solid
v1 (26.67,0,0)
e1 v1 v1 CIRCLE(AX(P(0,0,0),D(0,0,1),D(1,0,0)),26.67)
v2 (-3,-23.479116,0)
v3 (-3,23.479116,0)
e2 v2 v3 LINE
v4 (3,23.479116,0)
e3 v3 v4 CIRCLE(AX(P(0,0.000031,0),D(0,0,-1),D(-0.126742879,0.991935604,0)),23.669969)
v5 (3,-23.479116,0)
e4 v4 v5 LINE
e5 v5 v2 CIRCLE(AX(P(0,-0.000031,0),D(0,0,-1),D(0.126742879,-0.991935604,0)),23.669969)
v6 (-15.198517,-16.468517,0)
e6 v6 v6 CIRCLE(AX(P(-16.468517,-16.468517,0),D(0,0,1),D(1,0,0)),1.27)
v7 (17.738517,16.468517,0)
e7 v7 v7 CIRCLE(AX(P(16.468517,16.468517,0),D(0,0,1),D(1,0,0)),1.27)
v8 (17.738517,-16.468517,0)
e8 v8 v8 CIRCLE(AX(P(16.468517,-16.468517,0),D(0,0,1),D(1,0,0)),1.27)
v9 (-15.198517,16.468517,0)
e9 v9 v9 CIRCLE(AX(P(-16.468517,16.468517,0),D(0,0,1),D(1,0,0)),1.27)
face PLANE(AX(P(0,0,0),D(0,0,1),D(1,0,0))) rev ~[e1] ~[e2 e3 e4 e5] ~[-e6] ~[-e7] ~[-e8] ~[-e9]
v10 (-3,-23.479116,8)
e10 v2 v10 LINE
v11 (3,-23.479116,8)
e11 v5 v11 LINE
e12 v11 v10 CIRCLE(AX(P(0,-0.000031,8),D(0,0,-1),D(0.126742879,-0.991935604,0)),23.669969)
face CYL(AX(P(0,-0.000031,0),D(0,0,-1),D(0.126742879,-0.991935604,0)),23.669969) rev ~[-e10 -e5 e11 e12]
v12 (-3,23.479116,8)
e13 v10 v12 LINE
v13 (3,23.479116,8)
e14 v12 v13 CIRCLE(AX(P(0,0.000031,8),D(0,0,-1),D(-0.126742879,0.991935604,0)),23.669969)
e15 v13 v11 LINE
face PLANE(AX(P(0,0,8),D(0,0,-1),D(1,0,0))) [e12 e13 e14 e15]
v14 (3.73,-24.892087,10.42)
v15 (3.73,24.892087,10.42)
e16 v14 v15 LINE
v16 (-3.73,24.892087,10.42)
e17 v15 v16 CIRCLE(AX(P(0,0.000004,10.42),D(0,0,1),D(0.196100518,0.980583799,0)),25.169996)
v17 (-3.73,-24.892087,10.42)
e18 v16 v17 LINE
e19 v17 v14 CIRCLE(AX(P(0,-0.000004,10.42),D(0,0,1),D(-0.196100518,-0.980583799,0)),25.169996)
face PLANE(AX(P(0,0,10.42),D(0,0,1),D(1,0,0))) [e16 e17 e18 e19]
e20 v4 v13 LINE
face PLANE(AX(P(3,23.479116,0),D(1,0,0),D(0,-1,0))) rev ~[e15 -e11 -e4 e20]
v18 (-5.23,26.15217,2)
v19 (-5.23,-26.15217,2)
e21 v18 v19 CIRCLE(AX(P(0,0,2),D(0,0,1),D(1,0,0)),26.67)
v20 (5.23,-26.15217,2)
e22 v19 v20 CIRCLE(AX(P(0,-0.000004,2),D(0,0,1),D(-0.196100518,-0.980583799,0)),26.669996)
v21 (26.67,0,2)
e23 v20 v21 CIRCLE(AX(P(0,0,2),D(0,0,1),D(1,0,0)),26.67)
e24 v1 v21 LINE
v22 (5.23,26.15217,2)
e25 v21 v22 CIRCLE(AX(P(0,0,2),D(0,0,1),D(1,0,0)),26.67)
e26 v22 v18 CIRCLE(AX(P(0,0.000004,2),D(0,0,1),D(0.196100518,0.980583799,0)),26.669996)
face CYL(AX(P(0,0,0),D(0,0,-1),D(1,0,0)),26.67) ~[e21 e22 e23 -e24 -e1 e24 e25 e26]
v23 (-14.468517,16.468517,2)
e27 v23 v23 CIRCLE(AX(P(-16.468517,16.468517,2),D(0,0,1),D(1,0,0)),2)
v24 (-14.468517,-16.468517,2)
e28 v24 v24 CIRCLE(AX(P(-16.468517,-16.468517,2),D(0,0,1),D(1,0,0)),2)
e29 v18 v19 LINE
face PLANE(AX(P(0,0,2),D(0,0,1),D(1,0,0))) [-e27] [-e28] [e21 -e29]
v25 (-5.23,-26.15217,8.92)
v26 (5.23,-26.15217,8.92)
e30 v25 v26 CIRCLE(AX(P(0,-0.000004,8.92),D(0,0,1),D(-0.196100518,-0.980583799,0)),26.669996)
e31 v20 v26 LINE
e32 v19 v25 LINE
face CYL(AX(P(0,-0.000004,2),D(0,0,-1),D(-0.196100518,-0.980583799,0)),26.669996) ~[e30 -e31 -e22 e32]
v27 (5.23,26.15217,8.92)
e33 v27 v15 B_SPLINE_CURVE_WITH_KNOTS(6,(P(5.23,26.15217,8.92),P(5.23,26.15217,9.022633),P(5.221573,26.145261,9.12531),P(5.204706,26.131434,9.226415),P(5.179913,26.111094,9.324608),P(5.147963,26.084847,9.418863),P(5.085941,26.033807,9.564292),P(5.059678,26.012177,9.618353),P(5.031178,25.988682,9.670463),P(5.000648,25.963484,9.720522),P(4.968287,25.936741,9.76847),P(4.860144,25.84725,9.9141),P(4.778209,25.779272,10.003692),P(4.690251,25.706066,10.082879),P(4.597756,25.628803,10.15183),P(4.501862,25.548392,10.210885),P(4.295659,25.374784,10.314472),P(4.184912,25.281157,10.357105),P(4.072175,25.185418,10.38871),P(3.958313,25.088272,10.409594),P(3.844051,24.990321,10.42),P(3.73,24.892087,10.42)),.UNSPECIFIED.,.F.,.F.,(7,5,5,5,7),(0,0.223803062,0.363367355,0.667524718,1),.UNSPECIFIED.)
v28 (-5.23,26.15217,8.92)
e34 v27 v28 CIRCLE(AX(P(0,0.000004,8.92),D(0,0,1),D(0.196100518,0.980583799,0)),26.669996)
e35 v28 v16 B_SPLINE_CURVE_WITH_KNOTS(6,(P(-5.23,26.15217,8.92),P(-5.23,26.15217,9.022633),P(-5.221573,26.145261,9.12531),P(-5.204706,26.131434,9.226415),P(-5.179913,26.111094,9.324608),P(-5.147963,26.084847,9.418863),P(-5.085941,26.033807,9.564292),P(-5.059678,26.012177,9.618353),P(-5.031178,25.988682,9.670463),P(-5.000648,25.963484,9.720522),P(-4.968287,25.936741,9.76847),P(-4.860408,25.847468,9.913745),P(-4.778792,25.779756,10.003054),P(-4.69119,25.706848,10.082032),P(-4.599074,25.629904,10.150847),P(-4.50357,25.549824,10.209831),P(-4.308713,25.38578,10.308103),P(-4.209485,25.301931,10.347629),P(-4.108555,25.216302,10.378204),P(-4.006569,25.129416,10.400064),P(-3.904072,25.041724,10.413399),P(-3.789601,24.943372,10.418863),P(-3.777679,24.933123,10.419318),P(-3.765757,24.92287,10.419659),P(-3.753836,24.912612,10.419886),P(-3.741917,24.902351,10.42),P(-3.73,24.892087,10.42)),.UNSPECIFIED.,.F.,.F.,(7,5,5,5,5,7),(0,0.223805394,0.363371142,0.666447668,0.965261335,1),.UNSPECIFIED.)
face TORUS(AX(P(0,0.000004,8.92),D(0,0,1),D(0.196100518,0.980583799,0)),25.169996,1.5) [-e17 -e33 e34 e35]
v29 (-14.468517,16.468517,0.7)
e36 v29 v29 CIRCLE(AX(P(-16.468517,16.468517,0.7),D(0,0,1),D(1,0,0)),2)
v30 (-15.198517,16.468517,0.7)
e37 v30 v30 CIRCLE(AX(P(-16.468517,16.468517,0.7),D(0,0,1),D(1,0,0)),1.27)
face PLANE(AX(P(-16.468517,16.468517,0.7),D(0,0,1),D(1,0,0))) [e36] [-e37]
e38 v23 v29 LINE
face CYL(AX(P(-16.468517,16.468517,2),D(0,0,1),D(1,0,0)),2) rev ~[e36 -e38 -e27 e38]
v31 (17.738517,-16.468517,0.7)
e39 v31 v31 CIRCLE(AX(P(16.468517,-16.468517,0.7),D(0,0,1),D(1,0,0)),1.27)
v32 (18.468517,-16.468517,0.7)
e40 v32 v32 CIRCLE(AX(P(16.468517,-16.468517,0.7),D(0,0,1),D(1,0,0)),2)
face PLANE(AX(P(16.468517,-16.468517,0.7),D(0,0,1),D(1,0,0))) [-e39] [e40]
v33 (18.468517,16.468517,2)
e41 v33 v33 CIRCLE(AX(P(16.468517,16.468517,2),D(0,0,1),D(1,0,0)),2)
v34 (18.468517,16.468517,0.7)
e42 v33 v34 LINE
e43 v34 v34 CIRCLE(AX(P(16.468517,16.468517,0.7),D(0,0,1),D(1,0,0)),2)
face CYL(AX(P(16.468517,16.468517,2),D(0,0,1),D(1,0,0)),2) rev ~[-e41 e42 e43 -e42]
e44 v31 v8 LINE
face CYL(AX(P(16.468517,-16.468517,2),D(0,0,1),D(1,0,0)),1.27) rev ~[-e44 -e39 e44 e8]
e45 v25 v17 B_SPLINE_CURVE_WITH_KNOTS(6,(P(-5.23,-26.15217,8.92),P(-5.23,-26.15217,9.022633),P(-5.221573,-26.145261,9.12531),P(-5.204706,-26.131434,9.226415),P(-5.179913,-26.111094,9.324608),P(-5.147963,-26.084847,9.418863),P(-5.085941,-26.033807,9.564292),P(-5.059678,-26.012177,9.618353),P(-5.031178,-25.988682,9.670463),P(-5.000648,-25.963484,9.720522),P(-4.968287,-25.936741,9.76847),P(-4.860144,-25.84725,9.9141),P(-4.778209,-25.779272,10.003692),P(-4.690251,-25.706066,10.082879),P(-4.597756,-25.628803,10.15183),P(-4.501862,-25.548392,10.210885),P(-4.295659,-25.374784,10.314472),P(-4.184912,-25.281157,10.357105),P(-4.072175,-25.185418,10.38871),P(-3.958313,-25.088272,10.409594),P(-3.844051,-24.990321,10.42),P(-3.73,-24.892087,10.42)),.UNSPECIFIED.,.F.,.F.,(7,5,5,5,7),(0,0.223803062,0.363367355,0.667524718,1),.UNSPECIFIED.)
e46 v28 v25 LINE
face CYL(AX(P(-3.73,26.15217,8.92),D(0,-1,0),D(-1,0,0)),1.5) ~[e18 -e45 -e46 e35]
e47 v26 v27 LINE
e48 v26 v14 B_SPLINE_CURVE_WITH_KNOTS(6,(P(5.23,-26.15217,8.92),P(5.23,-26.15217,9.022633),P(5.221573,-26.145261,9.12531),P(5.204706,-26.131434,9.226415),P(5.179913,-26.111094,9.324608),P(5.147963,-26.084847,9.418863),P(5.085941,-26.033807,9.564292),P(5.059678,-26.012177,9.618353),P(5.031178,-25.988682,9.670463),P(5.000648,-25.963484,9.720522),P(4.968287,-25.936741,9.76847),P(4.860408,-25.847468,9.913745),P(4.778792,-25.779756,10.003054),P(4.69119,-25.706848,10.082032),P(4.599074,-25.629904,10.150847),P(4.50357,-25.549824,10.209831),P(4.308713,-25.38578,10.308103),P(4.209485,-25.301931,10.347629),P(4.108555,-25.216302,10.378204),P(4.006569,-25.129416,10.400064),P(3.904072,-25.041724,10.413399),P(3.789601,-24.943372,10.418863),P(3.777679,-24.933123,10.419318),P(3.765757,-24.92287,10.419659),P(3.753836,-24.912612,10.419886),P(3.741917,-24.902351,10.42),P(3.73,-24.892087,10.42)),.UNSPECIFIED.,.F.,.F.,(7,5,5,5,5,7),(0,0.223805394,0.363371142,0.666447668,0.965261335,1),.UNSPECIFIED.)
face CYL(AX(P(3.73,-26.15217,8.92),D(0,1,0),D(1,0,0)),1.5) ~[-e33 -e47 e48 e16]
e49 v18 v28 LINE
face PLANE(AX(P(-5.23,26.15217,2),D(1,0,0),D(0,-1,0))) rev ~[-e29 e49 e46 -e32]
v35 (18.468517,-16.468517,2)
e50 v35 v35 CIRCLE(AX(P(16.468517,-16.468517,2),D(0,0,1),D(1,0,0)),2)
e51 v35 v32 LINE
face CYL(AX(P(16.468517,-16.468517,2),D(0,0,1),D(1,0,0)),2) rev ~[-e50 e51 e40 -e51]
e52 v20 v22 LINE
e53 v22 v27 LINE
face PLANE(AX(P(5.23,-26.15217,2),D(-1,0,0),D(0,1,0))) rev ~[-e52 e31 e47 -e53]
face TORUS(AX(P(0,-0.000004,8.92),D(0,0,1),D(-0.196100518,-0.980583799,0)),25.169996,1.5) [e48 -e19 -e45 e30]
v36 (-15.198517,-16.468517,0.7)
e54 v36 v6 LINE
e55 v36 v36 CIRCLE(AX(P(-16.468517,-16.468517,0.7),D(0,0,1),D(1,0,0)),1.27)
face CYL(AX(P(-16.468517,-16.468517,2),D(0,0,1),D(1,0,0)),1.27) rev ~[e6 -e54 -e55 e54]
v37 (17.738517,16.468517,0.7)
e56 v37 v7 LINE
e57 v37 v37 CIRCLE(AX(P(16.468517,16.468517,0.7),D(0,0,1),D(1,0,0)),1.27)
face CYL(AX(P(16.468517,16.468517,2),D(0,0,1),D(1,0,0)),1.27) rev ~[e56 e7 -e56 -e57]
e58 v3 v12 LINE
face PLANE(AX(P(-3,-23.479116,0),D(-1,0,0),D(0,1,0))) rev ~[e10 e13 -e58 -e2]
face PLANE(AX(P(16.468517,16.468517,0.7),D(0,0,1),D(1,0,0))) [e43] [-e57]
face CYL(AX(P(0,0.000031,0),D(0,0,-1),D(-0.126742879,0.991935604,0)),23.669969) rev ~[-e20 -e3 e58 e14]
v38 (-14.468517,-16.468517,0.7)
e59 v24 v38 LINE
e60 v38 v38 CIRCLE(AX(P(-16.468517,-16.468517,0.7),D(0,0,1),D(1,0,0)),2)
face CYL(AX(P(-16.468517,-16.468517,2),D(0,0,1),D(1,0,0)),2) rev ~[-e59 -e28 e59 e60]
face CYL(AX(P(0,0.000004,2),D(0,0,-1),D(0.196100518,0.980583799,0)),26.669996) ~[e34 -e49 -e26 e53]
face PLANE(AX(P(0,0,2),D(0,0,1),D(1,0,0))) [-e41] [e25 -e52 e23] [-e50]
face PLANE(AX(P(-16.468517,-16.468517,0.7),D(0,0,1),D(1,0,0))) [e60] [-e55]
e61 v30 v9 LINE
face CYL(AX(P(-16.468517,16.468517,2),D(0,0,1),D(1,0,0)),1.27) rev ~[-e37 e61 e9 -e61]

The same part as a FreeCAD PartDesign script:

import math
import FreeCAD as App
import Part
import Sketcher
Q = App.Units.Quantity


def edges_at(feature, points):
    """Names of the edges that pass closest to the given points."""
    edges = feature.Shape.Edges
    near = lambda p: min(range(len(edges)), key=lambda i: edges[i].distToShape(Part.Vertex(*p))[0])
    return sorted({f"Edge{near(p) + 1}" for p in points})

doc = App.newDocument("Part")
params = doc.addObject("Spreadsheet::Sheet", "Params")
for row, (alias, value) in enumerate([
    ("sketch1_diameter", "53.34 mm"),
    ("pad1_length", "2 mm"),
    ("pad2_length", "8.42 mm"),
    ("fillet_radius", "1.5 mm"),
    ("pocket1_length", "8 mm"),
    ("sketch4_diameter", "2.54 mm"),
    ("pocket2_length", "2 mm"),
    ("sketch5_diameter", "4 mm"),
    ("pocket3_length", "1.3 mm"),
], start=1):
    params.set(f"A{row}", alias)
    params.set(f"B{row}", "=" + value)
    params.setAlias(f"B{row}", alias)

body = doc.addObject("PartDesign::Body", "Body")

# Sketch on XY plane
sketch1 = body.newObject("Sketcher::SketchObject", "Sketch")
sketch1.AttachmentSupport = (doc.getObject("XY_Plane"), [""])
sketch1.MapMode = "FlatFace"
sketch1.addGeometry(Part.Circle(App.Vector(0, 0, 0), App.Vector(0, 0, 1), 27), False)
sketch1.addConstraint(Sketcher.Constraint("Coincident", 0, 3, -1, 1))
sketch1.addConstraint(Sketcher.Constraint("Diameter", 0, Q("53.34 mm")))
sketch1.setExpression("Constraints[1]", "Params.sketch1_diameter")
pad1 = body.newObject("PartDesign::Pad", "Pad")
pad1.Profile = sketch1
pad1.setExpression("Length", "Params.pad1_length")

# Sketch on XY plane
sketch2 = body.newObject("Sketcher::SketchObject", "Sketch001")
sketch2.AttachmentSupport = (doc.getObject("XY_Plane"), [""])
sketch2.MapMode = "FlatFace"
sketch2.AttachmentOffset = App.Placement(App.Vector(0, 0, 2), App.Rotation())
sketch2.addGeometry(Part.ArcOfCircle(Part.Circle(App.Vector(0, 0, 0), App.Vector(0, 0, 1), 27), math.radians(79), math.radians(101)), False)
sketch2.addGeometry(Part.LineSegment(App.Vector(-5, 26, 0), App.Vector(-5, -26, 0)), False)
sketch2.addGeometry(Part.ArcOfCircle(Part.Circle(App.Vector(0, 0, 0), App.Vector(0, 0, 1), 27), math.radians(-101), math.radians(-79)), False)
sketch2.addGeometry(Part.LineSegment(App.Vector(5, -26, 0), App.Vector(5, 26, 0)), False)
sketch2.addConstraint(Sketcher.Constraint("Coincident", 0, 2, 1, 1))
sketch2.addConstraint(Sketcher.Constraint("Coincident", 1, 2, 2, 1))
sketch2.addConstraint(Sketcher.Constraint("Coincident", 2, 2, 3, 1))
sketch2.addConstraint(Sketcher.Constraint("Coincident", 3, 2, 0, 1))
sketch2.addConstraint(Sketcher.Constraint("Vertical", 1))
sketch2.addConstraint(Sketcher.Constraint("Vertical", 3))
sketch2.addConstraint(Sketcher.Constraint("Coincident", 0, 3, -1, 1))
sketch2.addConstraint(Sketcher.Constraint("Coincident", 2, 3, -1, 1))
sketch2.addConstraint(Sketcher.Constraint("Equal", 0, 2))
sketch2.addConstraint(Sketcher.Constraint("Horizontal", 1, 2, 2, 2))
sketch2.addConstraint(Sketcher.Constraint("DistanceX", 0, 2, -1, 1, Q("5.23 mm")))
sketch2.addConstraint(Sketcher.Constraint("Radius", 0, Q("26.669996 mm")))
pad2 = body.newObject("PartDesign::Pad", "Pad001")
pad2.Profile = sketch2
pad2.setExpression("Length", "Params.pad2_length")
doc.recompute()

fillet = body.newObject("PartDesign::Fillet", "Fillet")
fillet.Base = (pad2, edges_at(pad2, [
    (5.23, 0, 10.42),
    (0, 26.67, 10.42),
    (-5.23, 0, 10.42),
    (0, -26.67, 10.42),
]))
fillet.setExpression("Radius", "Params.fillet_radius")

# Sketch on XY plane
sketch3 = body.newObject("Sketcher::SketchObject", "Sketch002")
sketch3.AttachmentSupport = (doc.getObject("XY_Plane"), [""])
sketch3.MapMode = "FlatFace"
sketch3.addGeometry(Part.ArcOfCircle(Part.Circle(App.Vector(0, 0, 0), App.Vector(0, 0, 1), 24), math.radians(-97.28), math.radians(-82.72)), False)
sketch3.addGeometry(Part.LineSegment(App.Vector(-3, -23, 0), App.Vector(-3, 23, 0)), False)
sketch3.addGeometry(Part.ArcOfCircle(Part.Circle(App.Vector(0, 0, 0), App.Vector(0, 0, 1), 24), math.radians(82.72), math.radians(97.28)), False)
sketch3.addGeometry(Part.LineSegment(App.Vector(3, 23, 0), App.Vector(3, -23, 0)), False)
sketch3.addConstraint(Sketcher.Constraint("Coincident", 0, 1, 1, 1))
sketch3.addConstraint(Sketcher.Constraint("Coincident", 1, 2, 2, 2))
sketch3.addConstraint(Sketcher.Constraint("Coincident", 2, 1, 3, 1))
sketch3.addConstraint(Sketcher.Constraint("Coincident", 3, 2, 0, 2))
sketch3.addConstraint(Sketcher.Constraint("Vertical", 1))
sketch3.addConstraint(Sketcher.Constraint("Vertical", 3))
sketch3.addConstraint(Sketcher.Constraint("Equal", 0, 2))
sketch3.addConstraint(Sketcher.Constraint("Symmetric", 0, 3, 2, 3, -1, 1))
sketch3.addConstraint(Sketcher.Constraint("Symmetric", 1, 2, 2, 1, -2))
sketch3.addConstraint(Sketcher.Constraint("DistanceX", 0, 1, -1, 1, Q("3 mm")))
sketch3.addConstraint(Sketcher.Constraint("Radius", 0, Q("23.669969 mm")))
sketch3.addConstraint(Sketcher.Constraint("DistanceY", 1, 1, 1, 2, Q("46.958232 mm")))
pocket1 = body.newObject("PartDesign::Pocket", "Pocket")
pocket1.Profile = sketch3
pocket1.setExpression("Length", "Params.pocket1_length")
pocket1.Reversed = True

# Sketch on XY plane
sketch4 = body.newObject("Sketcher::SketchObject", "Sketch003")
sketch4.AttachmentSupport = (doc.getObject("XY_Plane"), [""])
sketch4.MapMode = "FlatFace"
sketch4.AttachmentOffset = App.Placement(App.Vector(0, 0, 2), App.Rotation())
sketch4.addGeometry(Part.Circle(App.Vector(-16.5, 16.5, 0), App.Vector(0, 0, 1), 1.3), False)
sketch4.addGeometry(Part.Circle(App.Vector(-16.5, -16.5, 0), App.Vector(0, 0, 1), 1.3), False)
sketch4.addGeometry(Part.Circle(App.Vector(16.5, -16.5, 0), App.Vector(0, 0, 1), 1.3), False)
sketch4.addGeometry(Part.Circle(App.Vector(16.5, 16.5, 0), App.Vector(0, 0, 1), 1.3), False)
sketch4.addConstraint(Sketcher.Constraint("Equal", 0, 1))
sketch4.addConstraint(Sketcher.Constraint("Equal", 1, 2))
sketch4.addConstraint(Sketcher.Constraint("Equal", 2, 3))
sketch4.addConstraint(Sketcher.Constraint("Symmetric", 0, 3, 2, 3, -1, 1))
sketch4.addConstraint(Sketcher.Constraint("Symmetric", 1, 3, 3, 3, -1, 1))
sketch4.addConstraint(Sketcher.Constraint("Symmetric", 1, 3, 2, 3, -2))
sketch4.addConstraint(Sketcher.Constraint("Diameter", 0, Q("2.54 mm")))
sketch4.addConstraint(Sketcher.Constraint("DistanceX", 0, 3, -1, 1, Q("16.468517 mm")))
sketch4.addConstraint(Sketcher.Constraint("DistanceY", -1, 1, 0, 3, Q("16.468517 mm")))
sketch4.setExpression("Constraints[6]", "Params.sketch4_diameter")
pocket2 = body.newObject("PartDesign::Pocket", "Pocket001")
pocket2.Profile = sketch4
pocket2.setExpression("Length", "Params.pocket2_length")

# Sketch on XY plane
sketch5 = body.newObject("Sketcher::SketchObject", "Sketch004")
sketch5.AttachmentSupport = (doc.getObject("XY_Plane"), [""])
sketch5.MapMode = "FlatFace"
sketch5.AttachmentOffset = App.Placement(App.Vector(0, 0, 2), App.Rotation())
sketch5.addGeometry(Part.Circle(App.Vector(-16.5, 16.5, 0), App.Vector(0, 0, 1), 2), False)
sketch5.addGeometry(Part.Circle(App.Vector(-16.5, -16.5, 0), App.Vector(0, 0, 1), 2), False)
sketch5.addGeometry(Part.Circle(App.Vector(16.5, -16.5, 0), App.Vector(0, 0, 1), 2), False)
sketch5.addGeometry(Part.Circle(App.Vector(16.5, 16.5, 0), App.Vector(0, 0, 1), 2), False)
sketch5.addConstraint(Sketcher.Constraint("Equal", 0, 1))
sketch5.addConstraint(Sketcher.Constraint("Equal", 1, 2))
sketch5.addConstraint(Sketcher.Constraint("Equal", 2, 3))
sketch5.addConstraint(Sketcher.Constraint("Symmetric", 0, 3, 2, 3, -1, 1))
sketch5.addConstraint(Sketcher.Constraint("Symmetric", 1, 3, 3, 3, -1, 1))
sketch5.addConstraint(Sketcher.Constraint("Symmetric", 1, 3, 2, 3, -2))
sketch5.addConstraint(Sketcher.Constraint("Diameter", 0, Q("4 mm")))
sketch5.addConstraint(Sketcher.Constraint("DistanceX", 0, 3, -1, 1, Q("16.468517 mm")))
sketch5.addConstraint(Sketcher.Constraint("DistanceY", -1, 1, 0, 3, Q("16.468517 mm")))
sketch5.setExpression("Constraints[6]", "Params.sketch5_diameter")
pocket3 = body.newObject("PartDesign::Pocket", "Pocket002")
pocket3.Profile = sketch5
pocket3.setExpression("Length", "Params.pocket3_length")

doc.recompute()
